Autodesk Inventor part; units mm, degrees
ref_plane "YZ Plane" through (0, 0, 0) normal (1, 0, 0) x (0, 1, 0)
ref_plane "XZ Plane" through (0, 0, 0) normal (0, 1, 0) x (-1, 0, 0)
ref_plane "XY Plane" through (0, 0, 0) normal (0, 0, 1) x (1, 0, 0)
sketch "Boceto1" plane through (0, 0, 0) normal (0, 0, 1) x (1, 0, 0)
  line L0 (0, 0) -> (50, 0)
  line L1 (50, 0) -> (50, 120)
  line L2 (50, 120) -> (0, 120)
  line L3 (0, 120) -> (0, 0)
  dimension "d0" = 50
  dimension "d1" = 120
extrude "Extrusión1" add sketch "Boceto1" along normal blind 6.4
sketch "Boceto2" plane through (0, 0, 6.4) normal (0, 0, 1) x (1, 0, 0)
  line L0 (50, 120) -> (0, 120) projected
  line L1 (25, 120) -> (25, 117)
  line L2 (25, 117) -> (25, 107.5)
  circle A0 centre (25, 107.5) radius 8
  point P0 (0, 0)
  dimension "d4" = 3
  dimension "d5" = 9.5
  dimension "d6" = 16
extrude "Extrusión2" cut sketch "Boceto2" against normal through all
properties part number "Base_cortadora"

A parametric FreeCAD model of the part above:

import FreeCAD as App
import Part
import Sketcher


def add_polygon(sketch, points):
    """Adds a closed chain of lines whose ends are joined by coincident constraints."""
    first, n = sketch.GeometryCount, len(points)
    for a, b in zip(points, points[1:] + points[:1]):
        sketch.addGeometry(Part.LineSegment(App.Vector(*a, 0), App.Vector(*b, 0)), False)
    for i in range(n):
        sketch.addConstraint(Sketcher.Constraint("Coincident", first + i, 2, first + (i + 1) % n, 1))

doc = App.newDocument("Part")
body = doc.addObject("PartDesign::Body", "Body")

sketch1 = doc.addObject("Sketcher::SketchObject", "Sketch")
body.addObject(sketch1)
sketch1.AttachmentSupport = (doc.XY_Plane, [""])
sketch1.MapMode = "FlatFace"
add_polygon(sketch1, [(0, 120), (0, 0), (50, 0), (50, 120)])
sketch1.addConstraint([
    Sketcher.Constraint("Vertical", 0),
    Sketcher.Constraint("Horizontal", 1),
    Sketcher.Constraint("Vertical", 2),
    Sketcher.Constraint("Horizontal", 3),
    Sketcher.Constraint("Coincident", 0, 2, -1, 1),
    Sketcher.Constraint("DistanceX", 1, 1, 1, 2, 50.0),
    Sketcher.Constraint("DistanceY", 0, 2, 0, 1, 120.0),
])
pad1 = doc.addObject("PartDesign::Pad", "Pad")
body.addObject(pad1)
pad1.Profile = sketch1
pad1.Length = 6.4

sketch2 = doc.addObject("Sketcher::SketchObject", "Sketch001")
body.addObject(sketch2)
sketch2.AttachmentSupport = (doc.XY_Plane, [""])
sketch2.MapMode = "FlatFace"
sketch2.AttachmentOffset = App.Placement(App.Vector(0, 0, 6.4), App.Rotation())
sketch2.addGeometry(Part.Circle(App.Vector(25, 108, 0), App.Vector(0, 0, 1), 8), False)
sketch2.addConstraint([
    Sketcher.Constraint("Diameter", 0, 16.0),
    Sketcher.Constraint("DistanceX", -1, 1, 0, 3, 25.0),
    Sketcher.Constraint("DistanceY", -1, 1, 0, 3, 107.5),
])
pocket1 = doc.addObject("PartDesign::Pocket", "Pocket")
body.addObject(pocket1)
pocket1.Profile = sketch2
pocket1.Type = "ThroughAll"

doc.recompute()
